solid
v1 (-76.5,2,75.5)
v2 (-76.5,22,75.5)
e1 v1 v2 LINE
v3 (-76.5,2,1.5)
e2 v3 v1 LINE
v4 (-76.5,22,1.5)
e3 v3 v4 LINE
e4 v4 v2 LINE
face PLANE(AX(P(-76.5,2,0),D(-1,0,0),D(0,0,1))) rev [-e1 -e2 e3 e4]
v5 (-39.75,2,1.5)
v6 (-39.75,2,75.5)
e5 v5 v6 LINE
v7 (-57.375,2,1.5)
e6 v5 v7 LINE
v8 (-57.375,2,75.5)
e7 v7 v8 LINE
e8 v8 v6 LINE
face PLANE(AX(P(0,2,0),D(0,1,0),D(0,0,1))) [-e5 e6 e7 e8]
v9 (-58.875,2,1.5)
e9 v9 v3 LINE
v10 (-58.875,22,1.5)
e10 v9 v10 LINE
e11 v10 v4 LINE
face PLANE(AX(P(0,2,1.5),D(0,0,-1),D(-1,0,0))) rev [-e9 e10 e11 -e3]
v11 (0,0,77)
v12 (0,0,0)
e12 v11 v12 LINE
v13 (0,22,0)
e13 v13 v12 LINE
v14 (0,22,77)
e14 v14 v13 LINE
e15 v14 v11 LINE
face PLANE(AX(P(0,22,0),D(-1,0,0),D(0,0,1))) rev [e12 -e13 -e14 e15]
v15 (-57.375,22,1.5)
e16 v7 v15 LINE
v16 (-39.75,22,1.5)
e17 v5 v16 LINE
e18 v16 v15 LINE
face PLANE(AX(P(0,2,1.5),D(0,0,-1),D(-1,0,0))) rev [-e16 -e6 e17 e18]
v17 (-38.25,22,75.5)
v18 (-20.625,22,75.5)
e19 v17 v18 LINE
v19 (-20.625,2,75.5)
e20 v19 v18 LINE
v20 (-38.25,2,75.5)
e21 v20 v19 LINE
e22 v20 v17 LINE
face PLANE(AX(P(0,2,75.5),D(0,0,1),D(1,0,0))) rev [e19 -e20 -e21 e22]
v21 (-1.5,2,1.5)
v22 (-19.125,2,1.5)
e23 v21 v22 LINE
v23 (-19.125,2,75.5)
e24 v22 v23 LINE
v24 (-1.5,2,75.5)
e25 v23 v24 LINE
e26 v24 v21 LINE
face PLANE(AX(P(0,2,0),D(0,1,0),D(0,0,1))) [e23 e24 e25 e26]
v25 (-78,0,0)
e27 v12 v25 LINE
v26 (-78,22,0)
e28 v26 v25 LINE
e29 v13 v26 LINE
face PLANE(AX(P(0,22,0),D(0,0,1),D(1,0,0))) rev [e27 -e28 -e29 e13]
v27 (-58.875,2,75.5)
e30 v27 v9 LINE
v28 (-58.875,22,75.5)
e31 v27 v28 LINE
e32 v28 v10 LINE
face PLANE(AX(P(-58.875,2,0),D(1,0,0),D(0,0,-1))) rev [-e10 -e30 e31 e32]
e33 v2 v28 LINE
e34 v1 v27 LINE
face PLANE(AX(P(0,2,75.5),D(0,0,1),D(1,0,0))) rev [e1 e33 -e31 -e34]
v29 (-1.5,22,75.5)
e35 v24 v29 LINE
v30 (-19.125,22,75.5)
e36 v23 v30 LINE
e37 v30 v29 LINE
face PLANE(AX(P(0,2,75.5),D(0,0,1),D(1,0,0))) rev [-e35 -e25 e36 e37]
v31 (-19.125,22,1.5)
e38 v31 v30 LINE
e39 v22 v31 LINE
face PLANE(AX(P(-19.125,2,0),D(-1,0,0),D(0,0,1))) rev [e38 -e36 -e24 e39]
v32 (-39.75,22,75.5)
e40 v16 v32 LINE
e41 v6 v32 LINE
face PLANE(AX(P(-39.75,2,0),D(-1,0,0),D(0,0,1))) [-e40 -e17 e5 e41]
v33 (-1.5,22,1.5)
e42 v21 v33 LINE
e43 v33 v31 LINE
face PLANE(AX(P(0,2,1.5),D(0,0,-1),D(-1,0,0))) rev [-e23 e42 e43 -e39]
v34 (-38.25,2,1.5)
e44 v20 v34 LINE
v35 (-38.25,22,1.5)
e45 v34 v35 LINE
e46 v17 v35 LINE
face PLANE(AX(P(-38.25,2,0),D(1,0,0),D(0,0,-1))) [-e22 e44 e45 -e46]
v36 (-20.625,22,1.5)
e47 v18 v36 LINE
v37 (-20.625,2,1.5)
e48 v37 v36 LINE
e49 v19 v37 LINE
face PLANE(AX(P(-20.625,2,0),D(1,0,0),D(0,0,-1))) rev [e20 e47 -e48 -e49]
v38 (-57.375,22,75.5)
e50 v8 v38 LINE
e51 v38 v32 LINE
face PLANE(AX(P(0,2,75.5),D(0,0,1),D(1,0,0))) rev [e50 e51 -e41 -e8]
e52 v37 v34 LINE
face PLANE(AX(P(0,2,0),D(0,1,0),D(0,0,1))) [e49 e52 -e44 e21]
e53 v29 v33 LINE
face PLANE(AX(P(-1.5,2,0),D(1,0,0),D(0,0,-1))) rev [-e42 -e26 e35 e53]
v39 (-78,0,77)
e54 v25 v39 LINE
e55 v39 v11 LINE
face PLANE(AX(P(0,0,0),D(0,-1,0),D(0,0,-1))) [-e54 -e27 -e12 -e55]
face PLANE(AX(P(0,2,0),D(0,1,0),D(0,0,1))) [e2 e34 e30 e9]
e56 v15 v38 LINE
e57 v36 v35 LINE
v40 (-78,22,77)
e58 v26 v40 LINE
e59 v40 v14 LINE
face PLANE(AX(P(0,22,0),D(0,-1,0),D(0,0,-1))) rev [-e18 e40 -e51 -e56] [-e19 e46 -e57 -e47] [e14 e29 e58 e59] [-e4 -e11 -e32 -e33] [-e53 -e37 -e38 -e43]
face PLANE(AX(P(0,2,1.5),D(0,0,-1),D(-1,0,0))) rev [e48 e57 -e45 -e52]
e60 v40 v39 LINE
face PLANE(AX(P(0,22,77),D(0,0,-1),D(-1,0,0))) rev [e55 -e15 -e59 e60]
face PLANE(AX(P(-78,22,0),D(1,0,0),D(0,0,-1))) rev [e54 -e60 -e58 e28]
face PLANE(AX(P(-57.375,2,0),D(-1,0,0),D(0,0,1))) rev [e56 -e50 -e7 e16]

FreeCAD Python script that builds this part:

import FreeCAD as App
import Part
import Sketcher
from FreeCAD import Vector
Q = App.Units.Quantity


def add_polygon(sketch, points):
    """Adds a closed chain of lines whose ends are joined by coincident constraints."""
    first, n = sketch.GeometryCount, len(points)
    for a, b in zip(points, points[1:] + points[:1]):
        sketch.addGeometry(Part.LineSegment(App.Vector(*a, 0), App.Vector(*b, 0)), False)
    for i in range(n):
        sketch.addConstraint(Sketcher.Constraint("Coincident", first + i, 2, first + (i + 1) % n, 1))

doc = App.newDocument("Part")
params = doc.addObject("Spreadsheet::Sheet", "Params")
for row, (alias, value) in enumerate([
    ("sketch1_width", "78 mm"),
    ("sketch1_height", "77 mm"),
    ("pad1_length", "22 mm"),
    ("sketch2_height", "74 mm"),
    ("pocket1_length", "20 mm"),
], start=1):
    params.set(f"A{row}", alias)
    params.set(f"B{row}", "=" + value)
    params.setAlias(f"B{row}", alias)

body = doc.addObject("PartDesign::Body", "Body")

# Sketch on XZ plane
sketch1 = body.newObject("Sketcher::SketchObject", "Sketch")
sketch1.AttachmentSupport = (doc.getObject("XZ_Plane"), [""])
sketch1.MapMode = "FlatFace"
add_polygon(sketch1, [(-78, 0), (-78, 77), (0, 77), (0, 0)])  # lines 0-3
sketch1.addConstraint([
    Sketcher.Constraint("Vertical", 0),
    Sketcher.Constraint("Horizontal", 1),
    Sketcher.Constraint("Vertical", 2),
    Sketcher.Constraint("Horizontal", 3),
    Sketcher.Constraint("Coincident", 2, 2, -1, 1),
    Sketcher.Constraint("DistanceX", 1, 1, 1, 2, Q("78 mm")),
    Sketcher.Constraint("DistanceY", 0, 1, 0, 2, Q("77 mm")),
])
sketch1.setExpression("Constraints[9]", "Params.sketch1_width")
sketch1.setExpression("Constraints[10]", "Params.sketch1_height")
pad1 = body.newObject("PartDesign::Pad", "Pad")
pad1.Profile = sketch1
pad1.setExpression("Length", "Params.pad1_length")
pad1.Reversed = True

# Sketch on XZ plane
sketch2 = body.newObject("Sketcher::SketchObject", "Sketch001")
sketch2.AttachmentSupport = (doc.getObject("XZ_Plane"), [""])
sketch2.MapMode = "FlatFace"
sketch2.AttachmentOffset = App.Placement(Vector(0, 0, -22), App.Rotation())
add_polygon(sketch2, [(-76, 2), (-76, 76), (-59, 76), (-59, 2)])  # lines 0-3
add_polygon(sketch2, [(-57, 2), (-57, 76), (-40, 76), (-40, 2)])  # lines 4-7
add_polygon(sketch2, [(-38, 2), (-38, 76), (-21, 76), (-21, 2)])  # lines 8-11
add_polygon(sketch2, [(-19, 2), (-19, 76), (-2, 76), (-2, 2)])  # lines 12-15
sketch2.addConstraint([
    Sketcher.Constraint("Vertical", 0),
    Sketcher.Constraint("Horizontal", 1),
    Sketcher.Constraint("Vertical", 2),
    Sketcher.Constraint("Horizontal", 3),
    Sketcher.Constraint("Vertical", 4),
    Sketcher.Constraint("Horizontal", 5),
    Sketcher.Constraint("Vertical", 6),
    Sketcher.Constraint("Horizontal", 7),
    Sketcher.Constraint("Vertical", 8),
    Sketcher.Constraint("Horizontal", 9),
    Sketcher.Constraint("Vertical", 10),
    Sketcher.Constraint("Horizontal", 11),
    Sketcher.Constraint("Vertical", 12),
    Sketcher.Constraint("Horizontal", 13),
    Sketcher.Constraint("Vertical", 14),
    Sketcher.Constraint("Horizontal", 15),
    Sketcher.Constraint("Horizontal", 1, 2, 4, 2),
    Sketcher.Constraint("Horizontal", 3, 2, 6, 2),
    Sketcher.Constraint("Horizontal", 5, 2, 8, 2),
    Sketcher.Constraint("Horizontal", 7, 2, 10, 2),
    Sketcher.Constraint("Horizontal", 9, 2, 12, 2),
    Sketcher.Constraint("Horizontal", 11, 2, 14, 2),
    Sketcher.Constraint("Equal", 3, 5),
    Sketcher.Constraint("Equal", 7, 9),
    Sketcher.Constraint("Equal", 11, 13),
    Sketcher.Constraint("DistanceY", 0, 1, 0, 2, Q("74 mm")),
    Sketcher.Constraint("DistanceX", 0, 2, -1, 1, Q("76.5 mm")),
    Sketcher.Constraint("DistanceY", -1, 1, 0, 2, Q("75.5 mm")),
    Sketcher.Constraint("DistanceX", 13, 2, -1, 1, Q("1.5 mm")),
    Sketcher.Constraint("DistanceX", 1, 2, 4, 2, Q("1.5 mm")),
    Sketcher.Constraint("DistanceX", 5, 2, 8, 2, Q("1.5 mm")),
    Sketcher.Constraint("DistanceX", 9, 2, 12, 2, Q("1.5 mm")),
])
sketch2.setExpression("Constraints[41]", "Params.sketch2_height")
pocket1 = body.newObject("PartDesign::Pocket", "Pocket")
pocket1.Profile = sketch2
pocket1.setExpression("Length", "Params.pocket1_length")
pocket1.Reversed = True

doc.recompute()
